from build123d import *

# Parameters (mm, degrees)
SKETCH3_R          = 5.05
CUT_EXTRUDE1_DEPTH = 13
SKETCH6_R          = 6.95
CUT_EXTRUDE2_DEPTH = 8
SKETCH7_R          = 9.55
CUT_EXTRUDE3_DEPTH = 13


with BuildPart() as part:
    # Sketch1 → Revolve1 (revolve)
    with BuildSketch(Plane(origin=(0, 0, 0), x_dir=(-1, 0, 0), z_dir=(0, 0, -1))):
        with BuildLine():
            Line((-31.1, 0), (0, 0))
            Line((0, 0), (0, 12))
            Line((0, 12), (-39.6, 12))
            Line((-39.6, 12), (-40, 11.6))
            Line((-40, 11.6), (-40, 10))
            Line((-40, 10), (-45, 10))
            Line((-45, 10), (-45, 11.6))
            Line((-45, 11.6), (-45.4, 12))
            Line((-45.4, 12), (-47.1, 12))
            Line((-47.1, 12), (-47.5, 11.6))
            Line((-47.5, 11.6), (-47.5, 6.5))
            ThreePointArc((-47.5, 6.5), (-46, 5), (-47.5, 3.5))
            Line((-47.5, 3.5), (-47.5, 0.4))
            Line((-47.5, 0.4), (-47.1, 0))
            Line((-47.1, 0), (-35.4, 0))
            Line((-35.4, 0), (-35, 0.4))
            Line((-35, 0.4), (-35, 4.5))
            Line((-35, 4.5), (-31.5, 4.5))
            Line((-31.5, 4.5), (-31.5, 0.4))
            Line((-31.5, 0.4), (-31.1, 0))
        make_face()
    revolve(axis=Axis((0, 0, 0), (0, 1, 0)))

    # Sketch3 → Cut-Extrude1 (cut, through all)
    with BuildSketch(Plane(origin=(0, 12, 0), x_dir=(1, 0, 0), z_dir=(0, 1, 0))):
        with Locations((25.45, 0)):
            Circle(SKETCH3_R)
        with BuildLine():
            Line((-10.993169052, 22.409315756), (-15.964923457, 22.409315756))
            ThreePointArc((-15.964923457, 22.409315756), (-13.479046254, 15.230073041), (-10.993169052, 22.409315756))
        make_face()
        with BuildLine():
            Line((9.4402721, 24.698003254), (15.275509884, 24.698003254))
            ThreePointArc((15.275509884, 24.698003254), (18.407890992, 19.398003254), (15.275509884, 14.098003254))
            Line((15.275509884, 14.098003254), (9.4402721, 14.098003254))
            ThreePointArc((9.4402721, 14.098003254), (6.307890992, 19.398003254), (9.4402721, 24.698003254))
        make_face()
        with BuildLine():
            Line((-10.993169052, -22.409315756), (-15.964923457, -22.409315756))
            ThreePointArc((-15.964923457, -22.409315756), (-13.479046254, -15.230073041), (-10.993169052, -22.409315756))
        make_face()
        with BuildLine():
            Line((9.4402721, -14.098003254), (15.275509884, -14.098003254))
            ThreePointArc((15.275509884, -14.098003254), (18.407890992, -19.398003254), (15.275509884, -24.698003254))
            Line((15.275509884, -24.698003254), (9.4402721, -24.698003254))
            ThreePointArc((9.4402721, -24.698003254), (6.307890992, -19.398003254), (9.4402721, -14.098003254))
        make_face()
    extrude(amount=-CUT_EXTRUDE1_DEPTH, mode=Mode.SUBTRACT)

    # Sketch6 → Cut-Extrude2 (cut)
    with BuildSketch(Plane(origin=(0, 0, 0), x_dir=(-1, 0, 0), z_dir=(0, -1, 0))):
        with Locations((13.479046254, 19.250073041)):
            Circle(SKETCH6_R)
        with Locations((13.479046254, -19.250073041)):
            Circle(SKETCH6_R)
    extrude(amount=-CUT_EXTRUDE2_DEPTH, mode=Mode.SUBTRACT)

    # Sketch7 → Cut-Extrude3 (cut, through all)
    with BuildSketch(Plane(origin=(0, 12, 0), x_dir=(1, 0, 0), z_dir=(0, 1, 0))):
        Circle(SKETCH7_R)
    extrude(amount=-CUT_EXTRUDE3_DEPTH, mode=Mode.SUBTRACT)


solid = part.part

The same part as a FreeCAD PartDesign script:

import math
import FreeCAD as App
import Part
import Sketcher

V = App.Vector
Q = App.Units.Quantity

doc = App.newDocument("Part")
body = doc.addObject("PartDesign::Body", "Body")

# Sketch on XY plane
sketch1 = body.newObject("Sketcher::SketchObject", "Sketch")
sketch1.AttachmentSupport = (doc.getObject("XY_Plane"), [""])
sketch1.MapMode = "FlatFace"
sketch1.addGeometry([
    Part.LineSegment(V(31.1, 0, 0), V(0, 0, 0)),  # 0
    Part.LineSegment(V(0, 0, 0), V(0, 12, 0)),  # 1
    Part.LineSegment(V(0, 12, 0), V(39.6, 12, 0)),  # 2
    Part.LineSegment(V(39.6, 12, 0), V(40, 11.6, 0)),  # 3
    Part.LineSegment(V(40, 11.6, 0), V(40, 10, 0)),  # 4
    Part.LineSegment(V(40, 10, 0), V(45, 10, 0)),  # 5
    Part.LineSegment(V(45, 10, 0), V(45, 11.6, 0)),  # 6
    Part.LineSegment(V(45, 11.6, 0), V(45.4, 12, 0)),  # 7
    Part.LineSegment(V(45.4, 12, 0), V(47.1, 12, 0)),  # 8
    Part.LineSegment(V(47.1, 12, 0), V(47.5, 11.6, 0)),  # 9
    Part.LineSegment(V(47.5, 11.6, 0), V(47.5, 6.5, 0)),  # 10
    Part.ArcOfCircle(Part.Circle(V(47.5, 5, 0), V(0, 0, 1), 1.5), math.radians(90), math.radians(270)),  # 11
    Part.LineSegment(V(47.5, 3.5, 0), V(47.5, 0.4, 0)),  # 12
    Part.LineSegment(V(47.5, 0.4, 0), V(47.1, 0, 0)),  # 13
    Part.LineSegment(V(47.1, 0, 0), V(35.4, 0, 0)),  # 14
    Part.LineSegment(V(35.4, 0, 0), V(35, 0.4, 0)),  # 15
    Part.LineSegment(V(35, 0.4, 0), V(35, 4.5, 0)),  # 16
    Part.LineSegment(V(35, 4.5, 0), V(31.5, 4.5, 0)),  # 17
    Part.LineSegment(V(31.5, 4.5, 0), V(31.5, 0.4, 0)),  # 18
    Part.LineSegment(V(31.5, 0.4, 0), V(31.1, 0, 0)),  # 19
], False)
sketch1.addConstraint([
    Sketcher.Constraint("Coincident", 0, 2, 1, 1),
    Sketcher.Constraint("Coincident", 1, 2, 2, 1),
    Sketcher.Constraint("Coincident", 2, 2, 3, 1),
    Sketcher.Constraint("Coincident", 3, 2, 4, 1),
    Sketcher.Constraint("Coincident", 4, 2, 5, 1),
    Sketcher.Constraint("Coincident", 5, 2, 6, 1),
    Sketcher.Constraint("Coincident", 6, 2, 7, 1),
    Sketcher.Constraint("Coincident", 7, 2, 8, 1),
    Sketcher.Constraint("Coincident", 8, 2, 9, 1),
    Sketcher.Constraint("Coincident", 9, 2, 10, 1),
    Sketcher.Constraint("Coincident", 10, 2, 11, 1),
    Sketcher.Constraint("Coincident", 11, 2, 12, 1),
    Sketcher.Constraint("Coincident", 12, 2, 13, 1),
    Sketcher.Constraint("Coincident", 13, 2, 14, 1),
    Sketcher.Constraint("Coincident", 14, 2, 15, 1),
    Sketcher.Constraint("Coincident", 15, 2, 16, 1),
    Sketcher.Constraint("Coincident", 16, 2, 17, 1),
    Sketcher.Constraint("Coincident", 17, 2, 18, 1),
    Sketcher.Constraint("Coincident", 18, 2, 19, 1),
    Sketcher.Constraint("Coincident", 19, 2, 0, 1),
    Sketcher.Constraint("Horizontal", 0),
    Sketcher.Constraint("Vertical", 1),
    Sketcher.Constraint("Horizontal", 2),
    Sketcher.Constraint("Vertical", 4),
    Sketcher.Constraint("Horizontal", 5),
    Sketcher.Constraint("Vertical", 6),
    Sketcher.Constraint("Horizontal", 8),
    Sketcher.Constraint("Vertical", 10),
    Sketcher.Constraint("Vertical", 12),
    Sketcher.Constraint("Horizontal", 14),
    Sketcher.Constraint("Vertical", 16),
    Sketcher.Constraint("Horizontal", 17),
    Sketcher.Constraint("Vertical", 18),
    Sketcher.Constraint("Coincident", 0, 2, -1, 1),
    Sketcher.Constraint("PointOnObject", 13, 2, -1),
    Sketcher.Constraint("Perpendicular", 3, 7),
    Sketcher.Constraint("Perpendicular", 7, 9),
    Sketcher.Constraint("Perpendicular", 9, 13),
    Sketcher.Constraint("Perpendicular", 13, 15),
    Sketcher.Constraint("Perpendicular", 15, 19),
    Sketcher.Constraint("Horizontal", 3, 2, 6, 2),
    Sketcher.Constraint("Horizontal", 2, 2, 7, 2),
    Sketcher.Constraint("Horizontal", 6, 2, 9, 2),
    Sketcher.Constraint("Horizontal", 12, 2, 15, 2),
    Sketcher.Constraint("Horizontal", 15, 2, 18, 2),
    Sketcher.Constraint("Vertical", 11, 3, 9, 2),
    Sketcher.Constraint("Vertical", 10, 2, 11, 2),
    Sketcher.Constraint("Vertical", 8, 2, 13, 2),
    Sketcher.Constraint("Equal", 3, 7),
    Sketcher.Constraint("Radius", 11, Q("1.5 mm")),
    Sketcher.Constraint("DistanceX", 5, 1, 5, 2, Q("5 mm")),
    Sketcher.Constraint("DistanceY", 1, 1, 1, 2, Q("12 mm")),
    Sketcher.Constraint("DistanceX", 0, 2, 0, 1, Q("31.1 mm")),
    Sketcher.Constraint("DistanceX", 2, 1, 2, 2, Q("39.6 mm")),
    Sketcher.Constraint("DistanceX", 8, 1, 8, 2, Q("1.7 mm")),
    Sketcher.Constraint("DistanceX", 14, 2, 14, 1, Q("11.7 mm")),
    Sketcher.Constraint("DistanceY", 4, 2, 4, 1, Q("1.6 mm")),
    Sketcher.Constraint("DistanceY", 10, 2, 10, 1, Q("5.1 mm")),
    Sketcher.Constraint("DistanceY", 12, 2, 12, 1, Q("3.1 mm")),
    Sketcher.Constraint("DistanceY", 16, 1, 16, 2, Q("4.1 mm")),
])
revolution = body.newObject("PartDesign::Revolution", "Revolution")
revolution.Profile = sketch1
revolution.ReferenceAxis = (sketch1, ["V_Axis"])
revolution.Angle = 360

# Sketch on XZ plane
sketch2 = body.newObject("Sketcher::SketchObject", "Sketch001")
sketch2.AttachmentSupport = (doc.getObject("XZ_Plane"), [""])
sketch2.MapMode = "FlatFace"
sketch2.AttachmentOffset = App.Placement(V(0, 0, -12), App.Rotation())
sketch2.addGeometry([
    Part.Circle(V(25.4, 0, 0), V(0, 0, 1), 5),  # 0
    Part.LineSegment(V(-11, -22.4, 0), V(-16, -22.4, 0)),  # 1
    Part.ArcOfCircle(Part.Circle(V(-13.5, -19.3, 0), V(0, 0, 1), 4), math.radians(-52), math.radians(232)),  # 2
    Part.LineSegment(V(15.3, -24.7, 0), V(9.4, -24.7, 0)),  # 3
    Part.ArcOfCircle(Part.Circle(V(12.4, -19.4, 0), V(0, 0, 1), 6), math.radians(119), math.radians(241)),  # 4
    Part.LineSegment(V(9.4, -14.1, 0), V(15.3, -14.1, 0)),  # 5
    Part.ArcOfCircle(Part.Circle(V(12.4, -19.4, 0), V(0, 0, 1), 6), math.radians(-61), math.radians(61)),  # 6
    Part.LineSegment(V(-16, 22.4, 0), V(-11, 22.4, 0)),  # 7
    Part.ArcOfCircle(Part.Circle(V(-13.5, 19.3, 0), V(0, 0, 1), 4), math.radians(128), math.radians(412)),  # 8
    Part.LineSegment(V(15.3, 14.1, 0), V(9.4, 14.1, 0)),  # 9
    Part.ArcOfCircle(Part.Circle(V(12.4, 19.4, 0), V(0, 0, 1), 6), math.radians(119), math.radians(241)),  # 10
    Part.LineSegment(V(9.4, 24.7, 0), V(15.3, 24.7, 0)),  # 11
    Part.ArcOfCircle(Part.Circle(V(12.4, 19.4, 0), V(0, 0, 1), 6), math.radians(-61), math.radians(61)),  # 12
], False)
sketch2.addConstraint([
    Sketcher.Constraint("Coincident", 1, 1, 2, 1),
    Sketcher.Constraint("Coincident", 2, 2, 1, 2),
    Sketcher.Constraint("Coincident", 3, 2, 4, 2),
    Sketcher.Constraint("Coincident", 4, 1, 5, 1),
    Sketcher.Constraint("Coincident", 5, 2, 6, 2),
    Sketcher.Constraint("Coincident", 6, 1, 3, 1),
    Sketcher.Constraint("Coincident", 7, 1, 8, 1),
    Sketcher.Constraint("Coincident", 8, 2, 7, 2),
    Sketcher.Constraint("Coincident", 9, 2, 10, 2),
    Sketcher.Constraint("Coincident", 10, 1, 11, 1),
    Sketcher.Constraint("Coincident", 11, 2, 12, 2),
    Sketcher.Constraint("Coincident", 12, 1, 9, 1),
    Sketcher.Constraint("Horizontal", 1),
    Sketcher.Constraint("Horizontal", 3),
    Sketcher.Constraint("Horizontal", 5),
    Sketcher.Constraint("Horizontal", 7),
    Sketcher.Constraint("Horizontal", 9),
    Sketcher.Constraint("Horizontal", 11),
    Sketcher.Constraint("Coincident", 6, 3, 4, 3),
    Sketcher.Constraint("Coincident", 12, 3, 10, 3),
    Sketcher.Constraint("Equal", 4, 6),
    Sketcher.Constraint("Equal", 2, 8),
    Sketcher.Constraint("Equal", 6, 10),
    Sketcher.Constraint("Equal", 10, 12),
    Sketcher.Constraint("Symmetric", 2, 3, 8, 3, -1),
    Sketcher.Constraint("Symmetric", 4, 3, 10, 3, -1),
    Sketcher.Constraint("PointOnObject", 0, 3, -1),
    Sketcher.Constraint("Vertical", 3, 2, 4, 1),
    Sketcher.Constraint("Vertical", 2, 2, 7, 1),
    Sketcher.Constraint("Vertical", 4, 1, 9, 2),
    Sketcher.Constraint("Vertical", 9, 2, 10, 1),
    Sketcher.Constraint("Diameter", 0, Q("10.1 mm")),
    Sketcher.Constraint("Radius", 2, Q("4.02 mm")),
    Sketcher.Constraint("Radius", 4, Q("6.05 mm")),
    Sketcher.Constraint("DistanceY", 3, 2, 4, 3, Q("5.3 mm")),
    Sketcher.Constraint("DistanceX", -1, 1, 0, 3, Q("25.45 mm")),
    Sketcher.Constraint("DistanceX", 1, 2, 1, 1, Q("4.971754 mm")),
    Sketcher.Constraint("DistanceX", -1, 1, 4, 3, Q("12.357891 mm")),
    Sketcher.Constraint("DistanceX", 1, 1, -1, 1, Q("10.993169 mm")),
    Sketcher.Constraint("DistanceY", 4, 3, 2, 3, Q("0.14793 mm")),
    Sketcher.Constraint("DistanceY", 1, 1, 8, 3, Q("41.659389 mm")),
])
pocket1 = body.newObject("PartDesign::Pocket", "Pocket")
pocket1.Profile = sketch2
pocket1.Type = "ThroughAll"
pocket1.Reversed = True

# Sketch on XZ plane
sketch3 = body.newObject("Sketcher::SketchObject", "Sketch002")
sketch3.AttachmentSupport = (doc.getObject("XZ_Plane"), [""])
sketch3.MapMode = "FlatFace"
sketch3.addGeometry([
    Part.Circle(V(-13, -19, 0), V(0, 0, 1), 7),
    Part.Circle(V(-13, 19, 0), V(0, 0, 1), 7),
], False)
sketch3.addConstraint([
    Sketcher.Constraint("Equal", 0, 1),
    Sketcher.Constraint("Symmetric", 0, 3, 1, 3, -1),
    Sketcher.Constraint("Diameter", 0, Q("13.9 mm")),
    Sketcher.Constraint("DistanceX", 0, 3, -1, 1, Q("13.479046 mm")),
    Sketcher.Constraint("DistanceY", 0, 3, -1, 1, Q("19.250073 mm")),
])
pocket2 = body.newObject("PartDesign::Pocket", "Pocket001")
pocket2.Profile = sketch3
pocket2.Length = 8

# Sketch on XZ plane
sketch4 = body.newObject("Sketcher::SketchObject", "Sketch003")
sketch4.AttachmentSupport = (doc.getObject("XZ_Plane"), [""])
sketch4.MapMode = "FlatFace"
sketch4.AttachmentOffset = App.Placement(V(0, 0, -12), App.Rotation())
sketch4.addGeometry(Part.Circle(V(0, 0, 0), V(0, 0, 1), 10), False)
sketch4.addConstraint([
    Sketcher.Constraint("Coincident", 0, 3, -1, 1),
    Sketcher.Constraint("Diameter", 0, Q("19.1 mm")),
])
pocket3 = body.newObject("PartDesign::Pocket", "Pocket002")
pocket3.Profile = sketch4
pocket3.Type = "ThroughAll"
pocket3.Reversed = True

doc.recompute()
